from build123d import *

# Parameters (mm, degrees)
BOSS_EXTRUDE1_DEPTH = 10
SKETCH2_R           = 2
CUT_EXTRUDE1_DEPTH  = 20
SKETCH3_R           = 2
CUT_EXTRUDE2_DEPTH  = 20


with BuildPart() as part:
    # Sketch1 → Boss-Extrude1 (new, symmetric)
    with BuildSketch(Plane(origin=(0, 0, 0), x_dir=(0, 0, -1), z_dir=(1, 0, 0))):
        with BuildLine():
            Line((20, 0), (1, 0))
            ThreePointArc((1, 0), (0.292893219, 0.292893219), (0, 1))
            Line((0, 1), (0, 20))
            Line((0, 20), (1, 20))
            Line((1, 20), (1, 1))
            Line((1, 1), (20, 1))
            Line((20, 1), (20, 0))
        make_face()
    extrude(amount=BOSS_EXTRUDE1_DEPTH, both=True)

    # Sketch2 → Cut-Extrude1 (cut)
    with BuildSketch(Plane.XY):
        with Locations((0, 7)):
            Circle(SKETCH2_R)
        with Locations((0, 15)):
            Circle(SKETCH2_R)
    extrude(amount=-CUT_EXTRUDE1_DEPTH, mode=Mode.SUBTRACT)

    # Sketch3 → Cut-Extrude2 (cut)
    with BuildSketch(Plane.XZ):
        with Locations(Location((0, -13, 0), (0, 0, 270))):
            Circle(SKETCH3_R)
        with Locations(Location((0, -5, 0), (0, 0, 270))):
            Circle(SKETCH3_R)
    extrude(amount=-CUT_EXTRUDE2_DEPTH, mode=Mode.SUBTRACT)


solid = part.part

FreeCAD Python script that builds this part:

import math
import FreeCAD as App
import Part
import Sketcher

V = App.Vector

doc = App.newDocument("Part")
params = doc.addObject("Spreadsheet::Sheet", "Params")
for row, (alias, value) in enumerate([
    ("sketch1_radius", "1 mm"),
    ("sketch1_width", "19 mm"),
    ("pad1_length", "20 mm"),
    ("sketch2_diameter", "4 mm"),
    ("pocket1_length", "20 mm"),
    ("sketch3_diameter", "4 mm"),
    ("pocket2_length", "20 mm"),
], start=1):
    params.set(f"A{row}", alias)
    params.set(f"B{row}", "=" + value)
    params.setAlias(f"B{row}", alias)

body = doc.addObject("PartDesign::Body", "Body")

sketch1 = body.newObject("Sketcher::SketchObject", "Sketch")
sketch1.AttachmentSupport = (doc.getObject("YZ_Plane"), [""])
sketch1.MapMode = "FlatFace"
sketch1.addGeometry(Part.LineSegment(V(0, -1, 0), V(0, -20, 0)), False)
sketch1.addGeometry(Part.LineSegment(V(0, -20, 0), V(1, -20, 0)), False)
sketch1.addGeometry(Part.LineSegment(V(1, -20, 0), V(1, -1, 0)), False)
sketch1.addGeometry(Part.LineSegment(V(1, -1, 0), V(20, -1, 0)), False)
sketch1.addGeometry(Part.LineSegment(V(20, -1, 0), V(20, 0, 0)), False)
sketch1.addGeometry(Part.LineSegment(V(20, 0, 0), V(1, 0, 0)), False)
sketch1.addGeometry(Part.ArcOfCircle(Part.Circle(V(1, -1, 0), V(0, 0, 1), 1), math.radians(90), math.radians(180)), False)
sketch1.addConstraint(Sketcher.Constraint("Coincident", 0, 2, 1, 1))
sketch1.addConstraint(Sketcher.Constraint("Coincident", 1, 2, 2, 1))
sketch1.addConstraint(Sketcher.Constraint("Coincident", 2, 2, 3, 1))
sketch1.addConstraint(Sketcher.Constraint("Coincident", 3, 2, 4, 1))
sketch1.addConstraint(Sketcher.Constraint("Coincident", 4, 2, 5, 1))
sketch1.addConstraint(Sketcher.Constraint("Tangent", 5, 2, 6, 1))
sketch1.addConstraint(Sketcher.Constraint("Tangent", 6, 2, 0, 1))
sketch1.addConstraint(Sketcher.Constraint("Vertical", 0))
sketch1.addConstraint(Sketcher.Constraint("Horizontal", 1))
sketch1.addConstraint(Sketcher.Constraint("Vertical", 2))
sketch1.addConstraint(Sketcher.Constraint("Horizontal", 3))
sketch1.addConstraint(Sketcher.Constraint("Vertical", 4))
sketch1.addConstraint(Sketcher.Constraint("Horizontal", 5))
sketch1.addConstraint(Sketcher.Constraint("Coincident", 2, 2, 6, 3))
sketch1.addConstraint(Sketcher.Constraint("PointOnObject", 0, 2, -2))
sketch1.addConstraint(Sketcher.Constraint("PointOnObject", 4, 2, -1))
sketch1.addConstraint(Sketcher.Constraint("Equal", 5, 0))
sketch1.addConstraint(Sketcher.Constraint("Radius", 6, 1.0))
sketch1.addConstraint(Sketcher.Constraint("DistanceX", 3, 1, 3, 2, 19.0))
sketch1.setExpression("Constraints[17]", "Params.sketch1_radius")
sketch1.setExpression("Constraints[18]", "Params.sketch1_width")
pad1 = body.newObject("PartDesign::Pad", "Pad")
pad1.Profile = sketch1
pad1.setExpression("Length", "Params.pad1_length")
pad1.Midplane = True

sketch2 = body.newObject("Sketcher::SketchObject", "Sketch001")
sketch2.AttachmentSupport = (doc.getObject("XY_Plane"), [""])
sketch2.MapMode = "FlatFace"
sketch2.addGeometry(Part.Circle(V(0, 7, 0), V(0, 0, 1), 2), False)
sketch2.addGeometry(Part.Circle(V(0, 15, 0), V(0, 0, 1), 2), False)
sketch2.addConstraint(Sketcher.Constraint("Equal", 0, 1))
sketch2.addConstraint(Sketcher.Constraint("PointOnObject", 0, 3, -2))
sketch2.addConstraint(Sketcher.Constraint("PointOnObject", 1, 3, -2))
sketch2.addConstraint(Sketcher.Constraint("Diameter", 0, 4.0))
sketch2.addConstraint(Sketcher.Constraint("DistanceY", -1, 1, 0, 3, 7.0))
sketch2.addConstraint(Sketcher.Constraint("DistanceY", -1, 1, 1, 3, 15.0))
sketch2.setExpression("Constraints[3]", "Params.sketch2_diameter")
pocket1 = body.newObject("PartDesign::Pocket", "Pocket")
pocket1.Profile = sketch2
pocket1.setExpression("Length", "Params.pocket1_length")

sketch3 = body.newObject("Sketcher::SketchObject", "Sketch002")
sketch3.AttachmentSupport = (doc.getObject("XZ_Plane"), [""])
sketch3.MapMode = "FlatFace"
sketch3.addGeometry(Part.Circle(V(0, -13, 0), V(0, 0, 1), 2), False)
sketch3.addGeometry(Part.Circle(V(0, -5, 0), V(0, 0, 1), 2), False)
sketch3.addConstraint(Sketcher.Constraint("Equal", 0, 1))
sketch3.addConstraint(Sketcher.Constraint("PointOnObject", 0, 3, -2))
sketch3.addConstraint(Sketcher.Constraint("PointOnObject", 1, 3, -2))
sketch3.addConstraint(Sketcher.Constraint("Diameter", 0, 4.0))
sketch3.addConstraint(Sketcher.Constraint("DistanceY", 0, 3, -1, 1, 13.0))
sketch3.addConstraint(Sketcher.Constraint("DistanceY", 1, 3, -1, 1, 5.0))
sketch3.setExpression("Constraints[3]", "Params.sketch3_diameter")
pocket2 = body.newObject("PartDesign::Pocket", "Pocket001")
pocket2.Profile = sketch3
pocket2.setExpression("Length", "Params.pocket2_length")

doc.recompute()
